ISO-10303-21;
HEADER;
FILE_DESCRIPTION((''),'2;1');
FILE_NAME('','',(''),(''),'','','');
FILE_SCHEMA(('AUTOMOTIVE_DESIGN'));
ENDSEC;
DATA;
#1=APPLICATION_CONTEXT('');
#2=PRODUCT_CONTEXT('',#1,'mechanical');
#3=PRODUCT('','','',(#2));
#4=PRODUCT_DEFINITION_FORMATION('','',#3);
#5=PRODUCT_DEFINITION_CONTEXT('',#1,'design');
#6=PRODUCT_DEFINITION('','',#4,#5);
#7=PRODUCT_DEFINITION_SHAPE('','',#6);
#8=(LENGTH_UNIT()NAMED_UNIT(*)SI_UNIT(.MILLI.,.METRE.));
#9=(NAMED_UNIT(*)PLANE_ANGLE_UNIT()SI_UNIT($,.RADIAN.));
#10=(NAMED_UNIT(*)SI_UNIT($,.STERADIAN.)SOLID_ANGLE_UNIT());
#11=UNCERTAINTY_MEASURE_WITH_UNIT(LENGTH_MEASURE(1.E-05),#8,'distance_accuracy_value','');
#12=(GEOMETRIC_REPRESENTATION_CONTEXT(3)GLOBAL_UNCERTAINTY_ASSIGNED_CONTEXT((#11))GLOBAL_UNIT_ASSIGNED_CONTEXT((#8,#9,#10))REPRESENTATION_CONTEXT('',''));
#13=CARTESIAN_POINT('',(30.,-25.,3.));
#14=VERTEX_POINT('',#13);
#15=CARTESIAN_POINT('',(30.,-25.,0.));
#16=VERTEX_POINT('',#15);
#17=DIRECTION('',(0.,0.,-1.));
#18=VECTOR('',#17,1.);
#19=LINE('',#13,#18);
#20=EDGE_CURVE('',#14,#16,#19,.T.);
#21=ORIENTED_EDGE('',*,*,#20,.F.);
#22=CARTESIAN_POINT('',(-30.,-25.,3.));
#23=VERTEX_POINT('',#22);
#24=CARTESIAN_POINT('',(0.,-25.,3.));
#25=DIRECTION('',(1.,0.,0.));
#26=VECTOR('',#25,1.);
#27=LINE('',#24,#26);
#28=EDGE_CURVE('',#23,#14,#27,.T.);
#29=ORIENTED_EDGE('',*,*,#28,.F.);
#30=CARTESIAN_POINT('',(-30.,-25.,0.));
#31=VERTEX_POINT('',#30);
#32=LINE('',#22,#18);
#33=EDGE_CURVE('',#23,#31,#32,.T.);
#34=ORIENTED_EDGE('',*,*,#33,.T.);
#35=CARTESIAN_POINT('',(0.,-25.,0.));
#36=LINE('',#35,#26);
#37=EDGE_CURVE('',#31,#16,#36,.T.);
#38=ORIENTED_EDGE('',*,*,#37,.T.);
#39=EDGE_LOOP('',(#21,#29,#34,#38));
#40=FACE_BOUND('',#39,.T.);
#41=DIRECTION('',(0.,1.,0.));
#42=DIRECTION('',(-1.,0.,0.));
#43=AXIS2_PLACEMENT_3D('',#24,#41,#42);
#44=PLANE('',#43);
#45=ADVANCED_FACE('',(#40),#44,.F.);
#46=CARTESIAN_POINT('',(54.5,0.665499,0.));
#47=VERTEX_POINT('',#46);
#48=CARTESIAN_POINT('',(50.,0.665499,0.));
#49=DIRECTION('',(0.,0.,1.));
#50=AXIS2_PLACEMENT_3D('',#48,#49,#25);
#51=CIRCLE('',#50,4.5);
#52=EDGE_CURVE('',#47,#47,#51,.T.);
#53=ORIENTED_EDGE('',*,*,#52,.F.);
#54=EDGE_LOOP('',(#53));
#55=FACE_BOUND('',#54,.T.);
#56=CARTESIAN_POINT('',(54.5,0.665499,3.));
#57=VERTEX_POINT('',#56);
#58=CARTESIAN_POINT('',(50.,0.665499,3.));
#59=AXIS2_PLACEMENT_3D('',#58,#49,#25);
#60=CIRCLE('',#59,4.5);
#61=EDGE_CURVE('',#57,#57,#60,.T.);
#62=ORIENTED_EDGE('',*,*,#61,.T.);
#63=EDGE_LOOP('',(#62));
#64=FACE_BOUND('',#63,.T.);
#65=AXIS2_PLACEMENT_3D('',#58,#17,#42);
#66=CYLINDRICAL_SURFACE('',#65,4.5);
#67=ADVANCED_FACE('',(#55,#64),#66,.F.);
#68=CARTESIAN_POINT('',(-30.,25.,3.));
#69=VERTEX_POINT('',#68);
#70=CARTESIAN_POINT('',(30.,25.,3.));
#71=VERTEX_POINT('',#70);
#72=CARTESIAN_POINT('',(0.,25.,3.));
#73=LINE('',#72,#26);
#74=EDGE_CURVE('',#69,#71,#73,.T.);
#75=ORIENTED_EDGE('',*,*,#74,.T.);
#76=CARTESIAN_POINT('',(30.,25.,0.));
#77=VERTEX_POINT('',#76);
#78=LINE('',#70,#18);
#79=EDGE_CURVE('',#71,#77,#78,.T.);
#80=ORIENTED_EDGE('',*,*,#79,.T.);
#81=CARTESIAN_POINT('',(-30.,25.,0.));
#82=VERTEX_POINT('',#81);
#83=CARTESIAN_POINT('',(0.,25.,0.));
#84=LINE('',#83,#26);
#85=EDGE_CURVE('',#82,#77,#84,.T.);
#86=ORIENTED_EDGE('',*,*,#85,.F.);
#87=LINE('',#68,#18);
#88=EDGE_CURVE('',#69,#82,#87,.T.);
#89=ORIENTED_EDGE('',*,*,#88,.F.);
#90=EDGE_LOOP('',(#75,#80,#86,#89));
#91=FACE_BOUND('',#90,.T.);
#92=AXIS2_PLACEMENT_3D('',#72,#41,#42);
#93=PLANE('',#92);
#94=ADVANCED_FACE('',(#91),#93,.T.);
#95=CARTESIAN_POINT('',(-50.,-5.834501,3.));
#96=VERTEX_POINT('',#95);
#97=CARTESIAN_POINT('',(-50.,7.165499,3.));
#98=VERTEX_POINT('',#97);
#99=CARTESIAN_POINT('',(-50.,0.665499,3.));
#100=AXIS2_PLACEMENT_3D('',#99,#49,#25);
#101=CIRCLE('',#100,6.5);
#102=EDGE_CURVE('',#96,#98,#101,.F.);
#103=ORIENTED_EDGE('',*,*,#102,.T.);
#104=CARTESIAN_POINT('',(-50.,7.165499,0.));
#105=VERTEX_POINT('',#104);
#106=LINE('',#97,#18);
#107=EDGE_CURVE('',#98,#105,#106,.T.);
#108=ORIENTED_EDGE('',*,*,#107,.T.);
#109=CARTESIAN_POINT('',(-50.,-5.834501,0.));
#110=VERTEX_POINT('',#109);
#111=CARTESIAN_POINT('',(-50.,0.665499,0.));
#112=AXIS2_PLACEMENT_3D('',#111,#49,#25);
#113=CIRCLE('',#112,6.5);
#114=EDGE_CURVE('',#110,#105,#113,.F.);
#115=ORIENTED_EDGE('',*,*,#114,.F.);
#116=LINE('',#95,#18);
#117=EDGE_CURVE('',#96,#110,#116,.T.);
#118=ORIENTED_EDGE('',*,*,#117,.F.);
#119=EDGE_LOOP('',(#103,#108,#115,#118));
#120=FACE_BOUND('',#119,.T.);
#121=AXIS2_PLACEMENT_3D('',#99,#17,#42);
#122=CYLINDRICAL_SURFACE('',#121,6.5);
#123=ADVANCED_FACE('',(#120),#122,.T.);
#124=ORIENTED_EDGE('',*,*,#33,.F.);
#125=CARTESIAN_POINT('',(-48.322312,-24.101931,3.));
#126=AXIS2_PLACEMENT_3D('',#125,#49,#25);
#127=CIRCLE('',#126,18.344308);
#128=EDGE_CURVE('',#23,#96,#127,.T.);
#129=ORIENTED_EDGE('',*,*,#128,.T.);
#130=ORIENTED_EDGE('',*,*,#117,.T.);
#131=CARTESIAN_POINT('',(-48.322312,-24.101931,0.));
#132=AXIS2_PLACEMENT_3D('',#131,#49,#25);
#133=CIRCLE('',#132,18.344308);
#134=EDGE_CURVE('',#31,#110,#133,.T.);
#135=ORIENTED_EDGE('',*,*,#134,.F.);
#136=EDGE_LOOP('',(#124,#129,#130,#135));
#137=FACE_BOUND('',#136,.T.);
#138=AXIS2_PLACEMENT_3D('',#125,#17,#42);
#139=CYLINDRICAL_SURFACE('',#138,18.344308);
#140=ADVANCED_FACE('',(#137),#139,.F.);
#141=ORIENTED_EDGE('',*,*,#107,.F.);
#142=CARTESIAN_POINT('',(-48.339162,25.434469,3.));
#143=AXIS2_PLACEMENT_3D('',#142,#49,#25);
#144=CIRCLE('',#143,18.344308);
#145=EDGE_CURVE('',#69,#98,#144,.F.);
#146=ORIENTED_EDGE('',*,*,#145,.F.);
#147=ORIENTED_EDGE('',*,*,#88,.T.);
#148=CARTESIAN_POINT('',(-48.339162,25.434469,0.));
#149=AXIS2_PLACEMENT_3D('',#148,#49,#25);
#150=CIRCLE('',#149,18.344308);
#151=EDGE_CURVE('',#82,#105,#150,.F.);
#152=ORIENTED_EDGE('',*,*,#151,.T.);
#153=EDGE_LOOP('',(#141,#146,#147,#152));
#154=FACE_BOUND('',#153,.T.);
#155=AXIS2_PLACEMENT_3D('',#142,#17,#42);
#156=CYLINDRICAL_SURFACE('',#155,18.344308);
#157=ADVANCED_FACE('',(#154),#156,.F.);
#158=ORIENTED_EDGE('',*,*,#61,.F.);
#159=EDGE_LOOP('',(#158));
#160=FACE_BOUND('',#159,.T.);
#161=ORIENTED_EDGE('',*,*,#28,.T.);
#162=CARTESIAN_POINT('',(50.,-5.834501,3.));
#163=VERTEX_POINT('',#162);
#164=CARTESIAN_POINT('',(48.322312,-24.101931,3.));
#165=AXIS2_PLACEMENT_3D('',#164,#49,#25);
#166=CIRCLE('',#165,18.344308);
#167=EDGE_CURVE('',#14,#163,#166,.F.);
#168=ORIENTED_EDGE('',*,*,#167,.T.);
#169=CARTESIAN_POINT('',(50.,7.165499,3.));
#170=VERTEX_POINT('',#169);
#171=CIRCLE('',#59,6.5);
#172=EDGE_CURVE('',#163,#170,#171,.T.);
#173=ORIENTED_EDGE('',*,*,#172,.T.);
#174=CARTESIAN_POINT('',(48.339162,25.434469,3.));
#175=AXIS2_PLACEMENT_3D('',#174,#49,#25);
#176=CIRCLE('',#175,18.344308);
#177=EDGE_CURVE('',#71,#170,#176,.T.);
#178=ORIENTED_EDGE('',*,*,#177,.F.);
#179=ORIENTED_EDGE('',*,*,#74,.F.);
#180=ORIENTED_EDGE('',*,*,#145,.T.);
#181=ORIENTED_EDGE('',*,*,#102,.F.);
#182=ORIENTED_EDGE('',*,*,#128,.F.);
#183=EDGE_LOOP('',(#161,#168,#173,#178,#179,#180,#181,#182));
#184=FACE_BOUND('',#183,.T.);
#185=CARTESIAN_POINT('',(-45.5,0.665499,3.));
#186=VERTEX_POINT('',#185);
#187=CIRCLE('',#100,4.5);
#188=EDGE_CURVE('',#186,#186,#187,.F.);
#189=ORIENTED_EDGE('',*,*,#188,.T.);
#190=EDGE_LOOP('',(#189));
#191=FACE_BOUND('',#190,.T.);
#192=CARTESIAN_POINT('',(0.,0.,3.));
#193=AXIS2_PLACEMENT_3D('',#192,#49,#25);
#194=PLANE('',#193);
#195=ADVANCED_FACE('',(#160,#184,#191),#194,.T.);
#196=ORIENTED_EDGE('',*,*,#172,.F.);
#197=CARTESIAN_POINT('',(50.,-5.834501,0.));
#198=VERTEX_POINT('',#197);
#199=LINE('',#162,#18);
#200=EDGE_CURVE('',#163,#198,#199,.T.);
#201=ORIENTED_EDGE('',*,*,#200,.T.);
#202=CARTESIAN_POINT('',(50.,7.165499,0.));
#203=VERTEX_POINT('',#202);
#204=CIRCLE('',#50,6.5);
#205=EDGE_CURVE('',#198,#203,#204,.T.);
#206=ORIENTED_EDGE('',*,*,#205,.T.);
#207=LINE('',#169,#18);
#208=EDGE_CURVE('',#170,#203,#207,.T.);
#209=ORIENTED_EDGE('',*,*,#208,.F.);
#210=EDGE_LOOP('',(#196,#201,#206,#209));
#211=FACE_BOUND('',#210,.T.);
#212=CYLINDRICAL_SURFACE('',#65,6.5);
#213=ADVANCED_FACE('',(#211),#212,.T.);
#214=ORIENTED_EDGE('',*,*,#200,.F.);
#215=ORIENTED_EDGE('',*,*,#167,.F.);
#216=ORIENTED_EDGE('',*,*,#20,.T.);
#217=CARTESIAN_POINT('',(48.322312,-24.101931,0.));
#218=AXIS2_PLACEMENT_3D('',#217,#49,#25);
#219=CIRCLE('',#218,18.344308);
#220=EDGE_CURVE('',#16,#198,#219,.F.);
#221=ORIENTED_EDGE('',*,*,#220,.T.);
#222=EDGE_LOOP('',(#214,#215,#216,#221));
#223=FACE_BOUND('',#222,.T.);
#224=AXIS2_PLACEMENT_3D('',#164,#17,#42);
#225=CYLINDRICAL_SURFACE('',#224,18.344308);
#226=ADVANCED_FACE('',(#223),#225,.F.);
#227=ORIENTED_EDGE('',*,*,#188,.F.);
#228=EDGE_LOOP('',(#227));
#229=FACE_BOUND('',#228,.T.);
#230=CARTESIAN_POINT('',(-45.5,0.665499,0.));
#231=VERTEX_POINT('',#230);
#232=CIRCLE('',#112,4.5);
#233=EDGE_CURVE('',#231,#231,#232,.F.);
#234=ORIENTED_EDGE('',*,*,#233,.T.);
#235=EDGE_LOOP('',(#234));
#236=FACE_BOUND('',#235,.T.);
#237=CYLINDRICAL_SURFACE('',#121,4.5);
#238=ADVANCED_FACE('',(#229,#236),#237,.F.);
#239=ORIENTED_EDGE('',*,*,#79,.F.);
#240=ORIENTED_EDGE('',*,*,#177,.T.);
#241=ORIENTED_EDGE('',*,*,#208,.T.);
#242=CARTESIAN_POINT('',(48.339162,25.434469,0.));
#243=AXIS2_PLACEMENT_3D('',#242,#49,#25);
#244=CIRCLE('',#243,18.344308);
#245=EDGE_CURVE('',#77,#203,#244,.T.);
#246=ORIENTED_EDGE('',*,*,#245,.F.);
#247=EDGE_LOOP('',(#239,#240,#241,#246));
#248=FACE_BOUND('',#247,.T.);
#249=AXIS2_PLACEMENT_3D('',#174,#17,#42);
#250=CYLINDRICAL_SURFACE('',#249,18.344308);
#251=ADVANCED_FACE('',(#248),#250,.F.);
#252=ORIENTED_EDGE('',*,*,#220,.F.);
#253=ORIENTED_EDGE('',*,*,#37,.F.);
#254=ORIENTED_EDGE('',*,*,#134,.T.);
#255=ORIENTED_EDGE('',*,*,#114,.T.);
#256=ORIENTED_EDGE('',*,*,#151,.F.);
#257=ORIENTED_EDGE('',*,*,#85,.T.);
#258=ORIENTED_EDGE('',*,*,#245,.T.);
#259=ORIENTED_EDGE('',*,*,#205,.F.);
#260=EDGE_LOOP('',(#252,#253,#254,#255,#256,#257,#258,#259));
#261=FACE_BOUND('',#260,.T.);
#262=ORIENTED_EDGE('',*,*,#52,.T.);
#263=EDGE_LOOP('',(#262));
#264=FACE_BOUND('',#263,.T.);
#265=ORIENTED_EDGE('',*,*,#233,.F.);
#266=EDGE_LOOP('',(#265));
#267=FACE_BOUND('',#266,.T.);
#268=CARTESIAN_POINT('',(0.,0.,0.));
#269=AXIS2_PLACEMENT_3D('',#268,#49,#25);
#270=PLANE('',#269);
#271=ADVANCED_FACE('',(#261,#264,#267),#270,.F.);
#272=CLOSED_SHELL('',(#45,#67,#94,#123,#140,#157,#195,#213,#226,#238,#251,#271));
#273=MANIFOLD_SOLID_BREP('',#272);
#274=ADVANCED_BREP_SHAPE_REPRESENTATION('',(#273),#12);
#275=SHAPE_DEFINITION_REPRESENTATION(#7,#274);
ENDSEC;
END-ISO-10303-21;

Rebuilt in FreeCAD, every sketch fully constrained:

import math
import FreeCAD as App
import Part
import Sketcher

doc = App.newDocument("Part")
body = doc.addObject("PartDesign::Body", "Body")

# Sketch on XY plane
sketch1 = body.newObject("Sketcher::SketchObject", "Sketch")
sketch1.AttachmentSupport = (doc.getObject("XY_Plane"), [""])
sketch1.MapMode = "FlatFace"
sketch1.addGeometry([
    Part.ArcOfCircle(Part.Circle(App.Vector(-50, 0.7, 0), App.Vector(0, 0, 1), 6.5), math.radians(90), math.radians(270)),  # 0
    Part.ArcOfCircle(Part.Circle(App.Vector(-48.3, -24.1, 0), App.Vector(0, 0, 1), 18.3), math.radians(-3), math.radians(95)),  # 1
    Part.LineSegment(App.Vector(-30, -25, 0), App.Vector(30, -25, 0)),  # 2
    Part.ArcOfCircle(Part.Circle(App.Vector(48.3, -24.1, 0), App.Vector(0, 0, 1), 18.3), math.radians(85), math.radians(183)),  # 3
    Part.ArcOfCircle(Part.Circle(App.Vector(50, 0.7, 0), App.Vector(0, 0, 1), 6.5), math.radians(-90), math.radians(90)),  # 4
    Part.ArcOfCircle(Part.Circle(App.Vector(48.3, 25.4, 0), App.Vector(0, 0, 1), 18.3), math.radians(-179), math.radians(-85)),  # 5
    Part.LineSegment(App.Vector(30, 25, 0), App.Vector(-30, 25, 0)),  # 6
    Part.ArcOfCircle(Part.Circle(App.Vector(-48.3, 25.4, 0), App.Vector(0, 0, 1), 18.3), math.radians(-95), math.radians(-1)),  # 7
    Part.Circle(App.Vector(50, 0.7, 0), App.Vector(0, 0, 1), 4.5),  # 8
    Part.Circle(App.Vector(-50, 0.7, 0), App.Vector(0, 0, 1), 4.5),  # 9
], False)
sketch1.addConstraint([
    Sketcher.Constraint("Coincident", 0, 2, 1, 2),
    Sketcher.Constraint("Coincident", 1, 1, 2, 1),
    Sketcher.Constraint("Coincident", 2, 2, 3, 2),
    Sketcher.Constraint("Coincident", 3, 1, 4, 1),
    Sketcher.Constraint("Coincident", 4, 2, 5, 2),
    Sketcher.Constraint("Coincident", 5, 1, 6, 1),
    Sketcher.Constraint("Coincident", 6, 2, 7, 2),
    Sketcher.Constraint("Coincident", 7, 1, 0, 1),
    Sketcher.Constraint("Horizontal", 2),
    Sketcher.Constraint("Horizontal", 6),
    Sketcher.Constraint("Coincident", 8, 3, 4, 3),
    Sketcher.Constraint("Coincident", 9, 3, 0, 3),
    Sketcher.Constraint("Equal", 1, 3),
    Sketcher.Constraint("Equal", 0, 4),
    Sketcher.Constraint("Equal", 3, 5),
    Sketcher.Constraint("Equal", 5, 7),
    Sketcher.Constraint("Equal", 8, 9),
    Sketcher.Constraint("Symmetric", 1, 1, 5, 1, -1, 1),
    Sketcher.Constraint("Symmetric", 1, 3, 3, 3, -2),
    Sketcher.Constraint("Symmetric", 0, 3, 4, 3, -2),
    Sketcher.Constraint("Symmetric", 5, 3, 7, 3, -2),
    Sketcher.Constraint("Vertical", 9, 3, 0, 2),
    Sketcher.Constraint("Vertical", 3, 1, 4, 2),
    Sketcher.Constraint("Diameter", 8, 9.0),
    Sketcher.Constraint("Radius", 0, 6.5),
    Sketcher.Constraint("DistanceX", 2, 1, 2, 2, 60.0),
    Sketcher.Constraint("DistanceX", 0, 3, -1, 1, 50.0),
    Sketcher.Constraint("DistanceY", 1, 1, -1, 1, 25.0),
    Sketcher.Constraint("Radius", 1, 18.344308),
    Sketcher.Constraint("DistanceY", -1, 1, 0, 3, 0.665499),
])
pad1 = body.newObject("PartDesign::Pad", "Pad")
pad1.Profile = sketch1
pad1.Length = 3

doc.recompute()
